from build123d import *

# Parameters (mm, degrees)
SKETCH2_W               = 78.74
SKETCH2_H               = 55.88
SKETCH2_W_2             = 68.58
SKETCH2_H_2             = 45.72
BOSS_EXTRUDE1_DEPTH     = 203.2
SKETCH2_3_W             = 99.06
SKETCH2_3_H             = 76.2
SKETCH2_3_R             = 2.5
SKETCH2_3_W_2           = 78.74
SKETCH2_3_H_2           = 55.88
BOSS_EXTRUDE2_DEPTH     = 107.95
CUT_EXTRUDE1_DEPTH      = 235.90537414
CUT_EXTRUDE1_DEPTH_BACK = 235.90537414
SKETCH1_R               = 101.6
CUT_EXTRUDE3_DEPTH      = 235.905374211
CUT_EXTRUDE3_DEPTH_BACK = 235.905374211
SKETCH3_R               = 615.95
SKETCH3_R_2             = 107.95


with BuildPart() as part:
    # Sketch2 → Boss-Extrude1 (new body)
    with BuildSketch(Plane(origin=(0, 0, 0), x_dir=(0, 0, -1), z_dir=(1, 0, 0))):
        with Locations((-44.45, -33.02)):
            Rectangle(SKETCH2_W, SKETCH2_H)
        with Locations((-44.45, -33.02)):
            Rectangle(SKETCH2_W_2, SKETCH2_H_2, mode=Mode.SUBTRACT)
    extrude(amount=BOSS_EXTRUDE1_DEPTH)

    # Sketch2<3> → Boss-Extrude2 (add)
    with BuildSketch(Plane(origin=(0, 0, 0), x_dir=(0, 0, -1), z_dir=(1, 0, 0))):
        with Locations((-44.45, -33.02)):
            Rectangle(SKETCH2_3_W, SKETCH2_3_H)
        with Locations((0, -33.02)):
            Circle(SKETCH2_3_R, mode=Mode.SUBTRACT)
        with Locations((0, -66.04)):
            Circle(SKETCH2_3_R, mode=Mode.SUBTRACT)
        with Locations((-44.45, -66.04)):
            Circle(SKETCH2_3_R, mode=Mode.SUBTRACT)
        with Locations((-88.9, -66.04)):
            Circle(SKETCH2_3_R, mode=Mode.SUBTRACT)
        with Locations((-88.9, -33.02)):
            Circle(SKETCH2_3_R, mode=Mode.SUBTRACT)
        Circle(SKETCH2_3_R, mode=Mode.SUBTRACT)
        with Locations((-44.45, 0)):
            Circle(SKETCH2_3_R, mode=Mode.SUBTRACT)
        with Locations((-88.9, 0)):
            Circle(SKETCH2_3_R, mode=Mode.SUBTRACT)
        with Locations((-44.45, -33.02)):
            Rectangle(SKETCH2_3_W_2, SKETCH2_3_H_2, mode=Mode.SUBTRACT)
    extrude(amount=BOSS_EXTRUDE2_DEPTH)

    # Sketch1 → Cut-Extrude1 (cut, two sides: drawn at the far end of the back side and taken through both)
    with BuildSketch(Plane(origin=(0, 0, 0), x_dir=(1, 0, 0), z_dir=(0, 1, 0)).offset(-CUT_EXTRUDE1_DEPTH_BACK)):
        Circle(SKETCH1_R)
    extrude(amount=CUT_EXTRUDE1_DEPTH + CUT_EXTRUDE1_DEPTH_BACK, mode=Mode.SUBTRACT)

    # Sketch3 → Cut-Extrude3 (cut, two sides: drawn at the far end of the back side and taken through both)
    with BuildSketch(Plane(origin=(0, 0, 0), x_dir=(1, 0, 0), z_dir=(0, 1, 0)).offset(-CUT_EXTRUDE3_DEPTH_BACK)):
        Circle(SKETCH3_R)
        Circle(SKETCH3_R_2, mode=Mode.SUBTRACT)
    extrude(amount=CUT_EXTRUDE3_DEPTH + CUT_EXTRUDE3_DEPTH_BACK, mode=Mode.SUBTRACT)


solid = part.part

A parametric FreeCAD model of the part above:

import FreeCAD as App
import Part
import Sketcher

V = App.Vector
Q = App.Units.Quantity

doc = App.newDocument("Part")
params = doc.addObject("Spreadsheet::Sheet", "Params")
for row, (alias, value) in enumerate([
    ("sketch1_width", "2.2 in"),
    ("sketch1_width2", "1.8 in"),
    ("sketch1_height", "3.1 in"),
    ("sketch1_height2", "2.7 in"),
    ("pad1_length", "8 in"),
    ("sketch2_width", "3 in"),
    ("sketch2_width2", "2.2 in"),
    ("sketch2_height", "3.9 in"),
    ("sketch2_height2", "3.1 in"),
    ("pad2_length", "4.25 in"),
    ("sketch3_diameter", "8 in"),
    ("sketch4_diameter", "48.5 in"),
    ("sketch4_diameter2", "8.5 in"),
], start=1):
    params.set(f"A{row}", alias)
    params.set(f"B{row}", "=" + value)
    params.setAlias(f"B{row}", alias)

body = doc.addObject("PartDesign::Body", "Body")

sketch1 = doc.addObject("Sketcher::SketchObject", "Sketch")
body.addObject(sketch1)
sketch1.AttachmentSupport = (doc.YZ_Plane, [""])
sketch1.MapMode = "FlatFace"
sketch1.addGeometry([
    Part.LineSegment(V(-5, 84, 0), V(-61, 84, 0)),
    Part.LineSegment(V(-61, 84, 0), V(-61, 5, 0)),
    Part.LineSegment(V(-61, 5, 0), V(-5, 5, 0)),
    Part.LineSegment(V(-5, 5, 0), V(-5, 84, 0)),
    Part.LineSegment(V(-56, 10, 0), V(-56, 79, 0)),
    Part.LineSegment(V(-56, 79, 0), V(-10, 79, 0)),
    Part.LineSegment(V(-10, 79, 0), V(-10, 10, 0)),
    Part.LineSegment(V(-10, 10, 0), V(-56, 10, 0)),
], False)
sketch1.addConstraint([
    Sketcher.Constraint("Coincident", 0, 2, 1, 1),
    Sketcher.Constraint("Coincident", 1, 2, 2, 1),
    Sketcher.Constraint("Coincident", 2, 2, 3, 1),
    Sketcher.Constraint("Coincident", 3, 2, 0, 1),
    Sketcher.Constraint("Coincident", 4, 2, 5, 1),
    Sketcher.Constraint("Coincident", 5, 2, 6, 1),
    Sketcher.Constraint("Coincident", 6, 2, 7, 1),
    Sketcher.Constraint("Coincident", 7, 2, 4, 1),
    Sketcher.Constraint("Horizontal", 0),
    Sketcher.Constraint("Vertical", 1),
    Sketcher.Constraint("Horizontal", 2),
    Sketcher.Constraint("Vertical", 3),
    Sketcher.Constraint("Vertical", 4),
    Sketcher.Constraint("Horizontal", 5),
    Sketcher.Constraint("Vertical", 6),
    Sketcher.Constraint("Horizontal", 7),
    Sketcher.Constraint("DistanceX", 0, 2, 0, 1, Q("2.2 in")),
    Sketcher.Constraint("DistanceX", 5, 1, 5, 2, Q("1.8 in")),
    Sketcher.Constraint("DistanceY", 1, 2, 1, 1, Q("3.1 in")),
    Sketcher.Constraint("DistanceY", 4, 1, 4, 2, Q("2.7 in")),
    Sketcher.Constraint("DistanceX", 4, 2, 3, 2, Q("2 in")),
    Sketcher.Constraint("DistanceX", 0, 2, -1, 1, Q("2.4 in")),
    Sketcher.Constraint("DistanceY", -1, 1, 0, 2, Q("3.3 in")),
    Sketcher.Constraint("DistanceY", -1, 1, 4, 2, Q("3.1 in")),
])
sketch1.setExpression("Constraints[16]", "Params.sketch1_width")
sketch1.setExpression("Constraints[17]", "Params.sketch1_width2")
sketch1.setExpression("Constraints[18]", "Params.sketch1_height")
sketch1.setExpression("Constraints[19]", "Params.sketch1_height2")
pad1 = doc.addObject("PartDesign::Pad", "Pad")
body.addObject(pad1)
pad1.Profile = sketch1
pad1.setExpression("Length", "Params.pad1_length")

sketch2 = doc.addObject("Sketcher::SketchObject", "Sketch001")
body.addObject(sketch2)
sketch2.AttachmentSupport = (doc.YZ_Plane, [""])
sketch2.MapMode = "FlatFace"
sketch2.addGeometry([
    Part.LineSegment(V(5.1, 94, 0), V(-71.1, 94, 0)),
    Part.LineSegment(V(-71.1, 94, 0), V(-71.1, -5.1, 0)),
    Part.LineSegment(V(-71.1, -5.1, 0), V(5.1, -5.1, 0)),
    Part.LineSegment(V(5.1, -5.1, 0), V(5.1, 94, 0)),
    Part.Circle(V(-66, 88.9, 0), V(0, 0, 1), 2.5),
    Part.Circle(V(-66, 44.5, 0), V(0, 0, 1), 2.5),
    Part.Circle(V(-66, 0, 0), V(0, 0, 1), 2.5),
    Part.Circle(V(-33, 88.9, 0), V(0, 0, 1), 2.5),
    Part.Circle(V(0, 88.9, 0), V(0, 0, 1), 2.5),
    Part.LineSegment(V(-61, 5.1, 0), V(-61, 83.8, 0)),
    Part.LineSegment(V(-61, 83.8, 0), V(-5.1, 83.8, 0)),
    Part.LineSegment(V(-5.1, 83.8, 0), V(-5.1, 5.1, 0)),
    Part.LineSegment(V(-5.1, 5.1, 0), V(-61, 5.1, 0)),
    Part.Circle(V(-33, 0, 0), V(0, 0, 1), 2.5),
    Part.Circle(V(0, 44.5, 0), V(0, 0, 1), 2.5),
    Part.Circle(V(0, 0, 0), V(0, 0, 1), 2.5),
], False)
sketch2.addConstraint([
    Sketcher.Constraint("Coincident", 0, 2, 1, 1),
    Sketcher.Constraint("Coincident", 1, 2, 2, 1),
    Sketcher.Constraint("Coincident", 2, 2, 3, 1),
    Sketcher.Constraint("Coincident", 3, 2, 0, 1),
    Sketcher.Constraint("Coincident", 9, 2, 10, 1),
    Sketcher.Constraint("Coincident", 10, 2, 11, 1),
    Sketcher.Constraint("Coincident", 11, 2, 12, 1),
    Sketcher.Constraint("Coincident", 12, 2, 9, 1),
    Sketcher.Constraint("Horizontal", 0),
    Sketcher.Constraint("Vertical", 1),
    Sketcher.Constraint("Horizontal", 2),
    Sketcher.Constraint("Vertical", 3),
    Sketcher.Constraint("Vertical", 9),
    Sketcher.Constraint("Horizontal", 10),
    Sketcher.Constraint("Vertical", 11),
    Sketcher.Constraint("Horizontal", 12),
    Sketcher.Constraint("Coincident", 15, 3, -1, 1),
    Sketcher.Constraint("Equal", 4, 5),
    Sketcher.Constraint("Equal", 5, 6),
    Sketcher.Constraint("Equal", 6, 7),
    Sketcher.Constraint("Equal", 7, 8),
    Sketcher.Constraint("Equal", 8, 13),
    Sketcher.Constraint("Equal", 13, 14),
    Sketcher.Constraint("Equal", 14, 15),
    Sketcher.Constraint("Symmetric", 2, 2, 11, 2, -1, 1),
    Sketcher.Constraint("PointOnObject", 6, 3, -1),
    Sketcher.Constraint("PointOnObject", 8, 3, -2),
    Sketcher.Constraint("PointOnObject", 13, 3, -1),
    Sketcher.Constraint("PointOnObject", 14, 3, -2),
    Sketcher.Constraint("Horizontal", 4, 3, 7, 3),
    Sketcher.Constraint("Horizontal", 7, 3, 8, 3),
    Sketcher.Constraint("Horizontal", 5, 3, 14, 3),
    Sketcher.Constraint("Vertical", 4, 3, 5, 3),
    Sketcher.Constraint("Vertical", 5, 3, 6, 3),
    Sketcher.Constraint("Vertical", 7, 3, 13, 3),
    Sketcher.Constraint("DistanceX", 0, 2, 0, 1, Q("3 in")),
    Sketcher.Constraint("DistanceX", 10, 1, 10, 2, Q("2.2 in")),
    Sketcher.Constraint("DistanceY", 1, 2, 1, 1, Q("3.9 in")),
    Sketcher.Constraint("DistanceY", 9, 1, 9, 2, Q("3.1 in")),
    Sketcher.Constraint("DistanceX", 4, 3, -1, 1, Q("2.6 in")),
    Sketcher.Constraint("DistanceY", -1, 1, 4, 3, Q("3.5 in")),
    Sketcher.Constraint("DistanceX", 7, 3, -1, 1, Q("1.3 in")),
    Sketcher.Constraint("DistanceX", 0, 2, -1, 1, Q("2.8 in")),
    Sketcher.Constraint("DistanceY", -1, 1, 0, 2, Q("3.7 in")),
    Sketcher.Constraint("Diameter", 4, Q("5 mm")),
    Sketcher.Constraint("DistanceY", -1, 1, 5, 3, Q("1.75 in")),
])
sketch2.setExpression("Constraints[35]", "Params.sketch2_width")
sketch2.setExpression("Constraints[36]", "Params.sketch2_width2")
sketch2.setExpression("Constraints[37]", "Params.sketch2_height")
sketch2.setExpression("Constraints[38]", "Params.sketch2_height2")
pad2 = doc.addObject("PartDesign::Pad", "Pad001")
body.addObject(pad2)
pad2.Profile = sketch2
pad2.setExpression("Length", "Params.pad2_length")

sketch3 = doc.addObject("Sketcher::SketchObject", "Sketch002")
body.addObject(sketch3)
sketch3.AttachmentSupport = (doc.XZ_Plane, [""])
sketch3.MapMode = "FlatFace"
sketch3.addGeometry(Part.Circle(V(0, 0, 0), V(0, 0, 1), 102), False)
sketch3.addConstraint([
    Sketcher.Constraint("Coincident", 0, 3, -1, 1),
    Sketcher.Constraint("Diameter", 0, Q("8 in")),
])
sketch3.setExpression("Constraints[1]", "Params.sketch3_diameter")
pocket1 = doc.addObject("PartDesign::Pocket", "Pocket")
body.addObject(pocket1)
pocket1.Profile = sketch3
pocket1.Type = "ThroughAll"
pocket1.Midplane = True

sketch4 = doc.addObject("Sketcher::SketchObject", "Sketch003")
body.addObject(sketch4)
sketch4.AttachmentSupport = (doc.XZ_Plane, [""])
sketch4.MapMode = "FlatFace"
sketch4.addGeometry([
    Part.Circle(V(0, 0, 0), V(0, 0, 1), 616),
    Part.Circle(V(0, 0, 0), V(0, 0, 1), 108),
], False)
sketch4.addConstraint([
    Sketcher.Constraint("Coincident", 0, 3, -1, 1),
    Sketcher.Constraint("Coincident", 1, 3, -1, 1),
    Sketcher.Constraint("Diameter", 0, Q("48.5 in")),
    Sketcher.Constraint("Diameter", 1, Q("8.5 in")),
])
sketch4.setExpression("Constraints[2]", "Params.sketch4_diameter")
sketch4.setExpression("Constraints[3]", "Params.sketch4_diameter2")
pocket2 = doc.addObject("PartDesign::Pocket", "Pocket001")
body.addObject(pocket2)
pocket2.Profile = sketch4
pocket2.Type = "ThroughAll"
pocket2.Midplane = True

doc.recompute()
